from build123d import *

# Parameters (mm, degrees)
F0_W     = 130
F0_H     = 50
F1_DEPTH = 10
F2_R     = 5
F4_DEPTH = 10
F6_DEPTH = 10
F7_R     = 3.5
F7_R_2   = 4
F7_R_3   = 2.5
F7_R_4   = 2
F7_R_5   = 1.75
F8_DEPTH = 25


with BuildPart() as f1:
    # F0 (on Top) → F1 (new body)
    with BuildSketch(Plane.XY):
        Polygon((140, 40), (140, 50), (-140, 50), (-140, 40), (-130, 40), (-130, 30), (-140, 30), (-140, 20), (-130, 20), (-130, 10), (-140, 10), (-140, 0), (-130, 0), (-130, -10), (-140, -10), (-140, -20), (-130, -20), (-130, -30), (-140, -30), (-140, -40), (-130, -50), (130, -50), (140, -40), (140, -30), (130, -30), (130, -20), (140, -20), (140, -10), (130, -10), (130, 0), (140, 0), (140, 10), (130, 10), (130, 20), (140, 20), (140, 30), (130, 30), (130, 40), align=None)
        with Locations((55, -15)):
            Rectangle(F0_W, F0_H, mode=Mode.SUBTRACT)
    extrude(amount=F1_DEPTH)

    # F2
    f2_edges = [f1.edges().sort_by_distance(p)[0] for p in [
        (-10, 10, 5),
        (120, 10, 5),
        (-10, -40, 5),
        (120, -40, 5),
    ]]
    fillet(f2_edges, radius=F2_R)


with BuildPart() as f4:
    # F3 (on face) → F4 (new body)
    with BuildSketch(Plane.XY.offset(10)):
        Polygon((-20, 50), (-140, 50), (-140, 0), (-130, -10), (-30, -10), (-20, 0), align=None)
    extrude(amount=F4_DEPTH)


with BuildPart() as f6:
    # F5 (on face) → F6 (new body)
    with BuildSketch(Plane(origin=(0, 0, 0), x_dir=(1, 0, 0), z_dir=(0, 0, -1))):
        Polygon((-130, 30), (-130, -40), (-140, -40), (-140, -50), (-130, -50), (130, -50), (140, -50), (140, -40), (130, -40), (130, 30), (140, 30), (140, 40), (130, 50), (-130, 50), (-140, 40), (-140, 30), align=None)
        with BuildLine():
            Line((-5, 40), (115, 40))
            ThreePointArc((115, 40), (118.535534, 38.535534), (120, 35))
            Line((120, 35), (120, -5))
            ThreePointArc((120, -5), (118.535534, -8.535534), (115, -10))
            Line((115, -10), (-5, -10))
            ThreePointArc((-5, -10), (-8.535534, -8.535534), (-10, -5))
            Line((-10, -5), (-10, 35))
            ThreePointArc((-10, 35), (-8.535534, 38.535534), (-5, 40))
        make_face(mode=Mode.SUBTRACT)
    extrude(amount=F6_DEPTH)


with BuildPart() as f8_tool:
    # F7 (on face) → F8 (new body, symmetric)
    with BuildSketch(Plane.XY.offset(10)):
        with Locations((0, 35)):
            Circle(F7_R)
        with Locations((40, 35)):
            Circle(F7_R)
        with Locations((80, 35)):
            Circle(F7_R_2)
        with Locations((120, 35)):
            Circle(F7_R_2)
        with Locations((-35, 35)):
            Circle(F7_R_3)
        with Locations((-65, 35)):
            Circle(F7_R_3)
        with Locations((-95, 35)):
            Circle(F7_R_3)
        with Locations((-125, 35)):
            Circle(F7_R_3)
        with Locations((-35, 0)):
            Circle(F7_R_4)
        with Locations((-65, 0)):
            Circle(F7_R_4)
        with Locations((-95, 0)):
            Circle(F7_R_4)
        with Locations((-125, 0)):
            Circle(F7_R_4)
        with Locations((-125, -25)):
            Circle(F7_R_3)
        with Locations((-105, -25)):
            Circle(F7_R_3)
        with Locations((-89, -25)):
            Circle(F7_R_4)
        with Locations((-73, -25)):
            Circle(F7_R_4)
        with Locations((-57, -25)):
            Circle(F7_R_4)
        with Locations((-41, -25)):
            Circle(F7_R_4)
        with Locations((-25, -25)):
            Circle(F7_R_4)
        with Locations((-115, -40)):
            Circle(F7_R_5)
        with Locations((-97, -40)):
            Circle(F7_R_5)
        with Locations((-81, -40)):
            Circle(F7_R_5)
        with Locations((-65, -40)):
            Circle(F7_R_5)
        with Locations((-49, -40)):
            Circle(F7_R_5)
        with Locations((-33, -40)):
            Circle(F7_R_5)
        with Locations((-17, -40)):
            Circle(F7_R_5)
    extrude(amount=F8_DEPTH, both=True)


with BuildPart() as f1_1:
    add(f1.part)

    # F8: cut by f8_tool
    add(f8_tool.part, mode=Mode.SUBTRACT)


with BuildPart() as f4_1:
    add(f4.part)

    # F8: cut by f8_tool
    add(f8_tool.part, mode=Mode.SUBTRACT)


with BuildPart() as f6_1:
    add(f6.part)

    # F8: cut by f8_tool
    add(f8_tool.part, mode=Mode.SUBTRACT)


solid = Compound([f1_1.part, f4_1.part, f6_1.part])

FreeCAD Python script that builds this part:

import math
import FreeCAD as App
import Part
import Sketcher
Q = App.Units.Quantity


def edges_at(feature, points):
    """Names of the edges that pass closest to the given points."""
    edges = feature.Shape.Edges
    near = lambda p: min(range(len(edges)), key=lambda i: edges[i].distToShape(Part.Vertex(*p))[0])
    return sorted({f"Edge{near(p) + 1}" for p in points})

doc = App.newDocument("Part")
body = doc.addObject("PartDesign::Body", "Body")

sketch1 = doc.addObject("Sketcher::SketchObject", "Sketch")
body.addObject(sketch1)
sketch1.AttachmentSupport = (doc.XY_Plane, [""])
sketch1.MapMode = "FlatFace"
sketch1.addGeometry(Part.LineSegment(App.Vector(140, 40, 0), App.Vector(140, 50, 0)), False)
sketch1.addGeometry(Part.LineSegment(App.Vector(140, 50, 0), App.Vector(-140, 50, 0)), False)
sketch1.addGeometry(Part.LineSegment(App.Vector(-140, 50, 0), App.Vector(-140, 40, 0)), False)
sketch1.addGeometry(Part.LineSegment(App.Vector(-140, 40, 0), App.Vector(-130, 40, 0)), False)
sketch1.addGeometry(Part.LineSegment(App.Vector(-130, 40, 0), App.Vector(-130, 30, 0)), False)
sketch1.addGeometry(Part.LineSegment(App.Vector(-130, 30, 0), App.Vector(-140, 30, 0)), False)
sketch1.addGeometry(Part.LineSegment(App.Vector(-140, 30, 0), App.Vector(-140, 20, 0)), False)
sketch1.addGeometry(Part.LineSegment(App.Vector(-140, 20, 0), App.Vector(-130, 20, 0)), False)
sketch1.addGeometry(Part.LineSegment(App.Vector(-130, 20, 0), App.Vector(-130, 10, 0)), False)
sketch1.addGeometry(Part.LineSegment(App.Vector(-130, 10, 0), App.Vector(-140, 10, 0)), False)
sketch1.addGeometry(Part.LineSegment(App.Vector(-140, 10, 0), App.Vector(-140, 0, 0)), False)
sketch1.addGeometry(Part.LineSegment(App.Vector(-140, 0, 0), App.Vector(-130, 0, 0)), False)
sketch1.addGeometry(Part.LineSegment(App.Vector(-130, 0, 0), App.Vector(-130, -10, 0)), False)
sketch1.addGeometry(Part.LineSegment(App.Vector(-130, -10, 0), App.Vector(-140, -10, 0)), False)
sketch1.addGeometry(Part.LineSegment(App.Vector(-140, -10, 0), App.Vector(-140, -20, 0)), False)
sketch1.addGeometry(Part.LineSegment(App.Vector(-140, -20, 0), App.Vector(-130, -20, 0)), False)
sketch1.addGeometry(Part.LineSegment(App.Vector(-130, -20, 0), App.Vector(-130, -30, 0)), False)
sketch1.addGeometry(Part.LineSegment(App.Vector(-130, -30, 0), App.Vector(-140, -30, 0)), False)
sketch1.addGeometry(Part.LineSegment(App.Vector(-140, -30, 0), App.Vector(-140, -40, 0)), False)
sketch1.addGeometry(Part.LineSegment(App.Vector(-140, -40, 0), App.Vector(-130, -50, 0)), False)
sketch1.addGeometry(Part.LineSegment(App.Vector(-130, -50, 0), App.Vector(130, -50, 0)), False)
sketch1.addGeometry(Part.LineSegment(App.Vector(130, -50, 0), App.Vector(140, -40, 0)), False)
sketch1.addGeometry(Part.LineSegment(App.Vector(140, -40, 0), App.Vector(140, -30, 0)), False)
sketch1.addGeometry(Part.LineSegment(App.Vector(140, -30, 0), App.Vector(130, -30, 0)), False)
sketch1.addGeometry(Part.LineSegment(App.Vector(130, -30, 0), App.Vector(130, -20, 0)), False)
sketch1.addGeometry(Part.LineSegment(App.Vector(130, -20, 0), App.Vector(140, -20, 0)), False)
sketch1.addGeometry(Part.LineSegment(App.Vector(140, -20, 0), App.Vector(140, -10, 0)), False)
sketch1.addGeometry(Part.LineSegment(App.Vector(140, -10, 0), App.Vector(130, -10, 0)), False)
sketch1.addGeometry(Part.LineSegment(App.Vector(130, -10, 0), App.Vector(130, 0, 0)), False)
sketch1.addGeometry(Part.LineSegment(App.Vector(130, 0, 0), App.Vector(140, 0, 0)), False)
sketch1.addGeometry(Part.LineSegment(App.Vector(140, 0, 0), App.Vector(140, 10, 0)), False)
sketch1.addGeometry(Part.LineSegment(App.Vector(140, 10, 0), App.Vector(130, 10, 0)), False)
sketch1.addGeometry(Part.LineSegment(App.Vector(130, 10, 0), App.Vector(130, 20, 0)), False)
sketch1.addGeometry(Part.LineSegment(App.Vector(130, 20, 0), App.Vector(140, 20, 0)), False)
sketch1.addGeometry(Part.LineSegment(App.Vector(140, 20, 0), App.Vector(140, 30, 0)), False)
sketch1.addGeometry(Part.LineSegment(App.Vector(140, 30, 0), App.Vector(130, 30, 0)), False)
sketch1.addGeometry(Part.LineSegment(App.Vector(130, 30, 0), App.Vector(130, 40, 0)), False)
sketch1.addGeometry(Part.LineSegment(App.Vector(130, 40, 0), App.Vector(140, 40, 0)), False)
sketch1.addGeometry(Part.LineSegment(App.Vector(120, -40, 0), App.Vector(-10, -40, 0)), False)
sketch1.addGeometry(Part.LineSegment(App.Vector(-10, -40, 0), App.Vector(-10, 10, 0)), False)
sketch1.addGeometry(Part.LineSegment(App.Vector(-10, 10, 0), App.Vector(120, 10, 0)), False)
sketch1.addGeometry(Part.LineSegment(App.Vector(120, 10, 0), App.Vector(120, -40, 0)), False)
sketch1.addConstraint(Sketcher.Constraint("Coincident", 0, 2, 1, 1))
sketch1.addConstraint(Sketcher.Constraint("Coincident", 1, 2, 2, 1))
sketch1.addConstraint(Sketcher.Constraint("Coincident", 2, 2, 3, 1))
sketch1.addConstraint(Sketcher.Constraint("Coincident", 3, 2, 4, 1))
sketch1.addConstraint(Sketcher.Constraint("Coincident", 4, 2, 5, 1))
sketch1.addConstraint(Sketcher.Constraint("Coincident", 5, 2, 6, 1))
sketch1.addConstraint(Sketcher.Constraint("Coincident", 6, 2, 7, 1))
sketch1.addConstraint(Sketcher.Constraint("Coincident", 7, 2, 8, 1))
sketch1.addConstraint(Sketcher.Constraint("Coincident", 8, 2, 9, 1))
sketch1.addConstraint(Sketcher.Constraint("Coincident", 9, 2, 10, 1))
sketch1.addConstraint(Sketcher.Constraint("Coincident", 10, 2, 11, 1))
sketch1.addConstraint(Sketcher.Constraint("Coincident", 11, 2, 12, 1))
sketch1.addConstraint(Sketcher.Constraint("Coincident", 12, 2, 13, 1))
sketch1.addConstraint(Sketcher.Constraint("Coincident", 13, 2, 14, 1))
sketch1.addConstraint(Sketcher.Constraint("Coincident", 14, 2, 15, 1))
sketch1.addConstraint(Sketcher.Constraint("Coincident", 15, 2, 16, 1))
sketch1.addConstraint(Sketcher.Constraint("Coincident", 16, 2, 17, 1))
sketch1.addConstraint(Sketcher.Constraint("Coincident", 17, 2, 18, 1))
sketch1.addConstraint(Sketcher.Constraint("Coincident", 18, 2, 19, 1))
sketch1.addConstraint(Sketcher.Constraint("Coincident", 19, 2, 20, 1))
sketch1.addConstraint(Sketcher.Constraint("Coincident", 20, 2, 21, 1))
sketch1.addConstraint(Sketcher.Constraint("Coincident", 21, 2, 22, 1))
sketch1.addConstraint(Sketcher.Constraint("Coincident", 22, 2, 23, 1))
sketch1.addConstraint(Sketcher.Constraint("Coincident", 23, 2, 24, 1))
sketch1.addConstraint(Sketcher.Constraint("Coincident", 24, 2, 25, 1))
sketch1.addConstraint(Sketcher.Constraint("Coincident", 25, 2, 26, 1))
sketch1.addConstraint(Sketcher.Constraint("Coincident", 26, 2, 27, 1))
sketch1.addConstraint(Sketcher.Constraint("Coincident", 27, 2, 28, 1))
sketch1.addConstraint(Sketcher.Constraint("Coincident", 28, 2, 29, 1))
sketch1.addConstraint(Sketcher.Constraint("Coincident", 29, 2, 30, 1))
sketch1.addConstraint(Sketcher.Constraint("Coincident", 30, 2, 31, 1))
sketch1.addConstraint(Sketcher.Constraint("Coincident", 31, 2, 32, 1))
sketch1.addConstraint(Sketcher.Constraint("Coincident", 32, 2, 33, 1))
sketch1.addConstraint(Sketcher.Constraint("Coincident", 33, 2, 34, 1))
sketch1.addConstraint(Sketcher.Constraint("Coincident", 34, 2, 35, 1))
sketch1.addConstraint(Sketcher.Constraint("Coincident", 35, 2, 36, 1))
sketch1.addConstraint(Sketcher.Constraint("Coincident", 36, 2, 37, 1))
sketch1.addConstraint(Sketcher.Constraint("Coincident", 37, 2, 0, 1))
sketch1.addConstraint(Sketcher.Constraint("Coincident", 38, 2, 39, 1))
sketch1.addConstraint(Sketcher.Constraint("Coincident", 39, 2, 40, 1))
sketch1.addConstraint(Sketcher.Constraint("Coincident", 40, 2, 41, 1))
sketch1.addConstraint(Sketcher.Constraint("Coincident", 41, 2, 38, 1))
sketch1.addConstraint(Sketcher.Constraint("Vertical", 0))
sketch1.addConstraint(Sketcher.Constraint("Horizontal", 1))
sketch1.addConstraint(Sketcher.Constraint("Vertical", 2))
sketch1.addConstraint(Sketcher.Constraint("Horizontal", 3))
sketch1.addConstraint(Sketcher.Constraint("Vertical", 4))
sketch1.addConstraint(Sketcher.Constraint("Horizontal", 5))
sketch1.addConstraint(Sketcher.Constraint("Vertical", 6))
sketch1.addConstraint(Sketcher.Constraint("Horizontal", 7))
sketch1.addConstraint(Sketcher.Constraint("Vertical", 8))
sketch1.addConstraint(Sketcher.Constraint("Horizontal", 9))
sketch1.addConstraint(Sketcher.Constraint("Vertical", 10))
sketch1.addConstraint(Sketcher.Constraint("Horizontal", 11))
sketch1.addConstraint(Sketcher.Constraint("Vertical", 12))
sketch1.addConstraint(Sketcher.Constraint("Horizontal", 13))
sketch1.addConstraint(Sketcher.Constraint("Vertical", 14))
sketch1.addConstraint(Sketcher.Constraint("Horizontal", 15))
sketch1.addConstraint(Sketcher.Constraint("Vertical", 16))
sketch1.addConstraint(Sketcher.Constraint("Horizontal", 17))
sketch1.addConstraint(Sketcher.Constraint("Vertical", 18))
sketch1.addConstraint(Sketcher.Constraint("Horizontal", 20))
sketch1.addConstraint(Sketcher.Constraint("Vertical", 22))
sketch1.addConstraint(Sketcher.Constraint("Horizontal", 23))
sketch1.addConstraint(Sketcher.Constraint("Vertical", 24))
sketch1.addConstraint(Sketcher.Constraint("Horizontal", 25))
sketch1.addConstraint(Sketcher.Constraint("Vertical", 26))
sketch1.addConstraint(Sketcher.Constraint("Horizontal", 27))
sketch1.addConstraint(Sketcher.Constraint("Vertical", 28))
sketch1.addConstraint(Sketcher.Constraint("Horizontal", 29))
sketch1.addConstraint(Sketcher.Constraint("Vertical", 30))
sketch1.addConstraint(Sketcher.Constraint("Horizontal", 31))
sketch1.addConstraint(Sketcher.Constraint("Vertical", 32))
sketch1.addConstraint(Sketcher.Constraint("Horizontal", 33))
sketch1.addConstraint(Sketcher.Constraint("Vertical", 34))
sketch1.addConstraint(Sketcher.Constraint("Horizontal", 35))
sketch1.addConstraint(Sketcher.Constraint("Vertical", 36))
sketch1.addConstraint(Sketcher.Constraint("Horizontal", 37))
sketch1.addConstraint(Sketcher.Constraint("Horizontal", 38))
sketch1.addConstraint(Sketcher.Constraint("Vertical", 39))
sketch1.addConstraint(Sketcher.Constraint("Horizontal", 40))
sketch1.addConstraint(Sketcher.Constraint("Vertical", 41))
sketch1.addConstraint(Sketcher.Constraint("Symmetric", 2, 2, 21, 2, -1, 1))
sketch1.addConstraint(Sketcher.Constraint("Symmetric", 5, 2, 22, 2, -1, 1))
sketch1.addConstraint(Sketcher.Constraint("Symmetric", 7, 2, 24, 2, -1, 1))
sketch1.addConstraint(Sketcher.Constraint("Symmetric", 9, 2, 26, 2, -1, 1))
sketch1.addConstraint(Sketcher.Constraint("Symmetric", 11, 2, 28, 2, -1, 1))
sketch1.addConstraint(Sketcher.Constraint("Symmetric", 13, 2, 30, 2, -1, 1))
sketch1.addConstraint(Sketcher.Constraint("Symmetric", 15, 2, 32, 2, -1, 1))
sketch1.addConstraint(Sketcher.Constraint("Symmetric", 17, 2, 34, 2, -1, 1))
sketch1.addConstraint(Sketcher.Constraint("Symmetric", 18, 2, 37, 2, -1, 1))
sketch1.addConstraint(Sketcher.Constraint("Symmetric", 18, 2, 21, 2, -2))
sketch1.addConstraint(Sketcher.Constraint("Symmetric", 16, 2, 23, 2, -2))
sketch1.addConstraint(Sketcher.Constraint("Symmetric", 14, 2, 25, 2, -2))
sketch1.addConstraint(Sketcher.Constraint("Symmetric", 8, 2, 12, 2, -1))
sketch1.addConstraint(Sketcher.Constraint("PointOnObject", 10, 2, -1))
sketch1.addConstraint(Sketcher.Constraint("Perpendicular", 19, 21))
sketch1.addConstraint(Sketcher.Constraint("Horizontal", 21, 2, 38, 2))
sketch1.addConstraint(Sketcher.Constraint("Horizontal", 31, 2, 39, 2))
sketch1.addConstraint(Sketcher.Constraint("Vertical", 4, 2, 7, 2))
sketch1.addConstraint(Sketcher.Constraint("Vertical", 6, 2, 9, 2))
sketch1.addConstraint(Sketcher.Constraint("Vertical", 16, 2, 19, 2))
sketch1.addConstraint(Sketcher.Constraint("Vertical", 20, 2, 23, 2))
sketch1.addConstraint(Sketcher.Constraint("Vertical", 32, 2, 35, 2))
sketch1.addConstraint(Sketcher.Constraint("Equal", 37, 0))
sketch1.addConstraint(Sketcher.Constraint("Equal", 2, 4))
sketch1.addConstraint(Sketcher.Constraint("Equal", 4, 6))
sketch1.addConstraint(Sketcher.Constraint("Equal", 6, 8))
sketch1.addConstraint(Sketcher.Constraint("Equal", 8, 10))
sketch1.addConstraint(Sketcher.Constraint("DistanceX", 1, 2, 1, 1, Q("280 mm")))
sketch1.addConstraint(Sketcher.Constraint("DistanceX", 3, 1, 3, 2, Q("10 mm")))
sketch1.addConstraint(Sketcher.Constraint("DistanceX", 38, 2, 38, 1, Q("130 mm")))
sketch1.addConstraint(Sketcher.Constraint("DistanceX", 38, 2, -1, 1, Q("10 mm")))
pad1 = doc.addObject("PartDesign::Pad", "Pad")
body.addObject(pad1)
pad1.Profile = sketch1
pad1.Length = 10
doc.recompute()

fillet = doc.addObject("PartDesign::Fillet", "Fillet")
body.addObject(fillet)
fillet.Base = (pad1, edges_at(pad1, [
    (-10, 10, 5),
    (120, 10, 5),
    (-10, -40, 5),
    (120, -40, 5),
]))
fillet.Radius = 5
body2 = doc.addObject("PartDesign::Body", "Body001")

sketch2 = doc.addObject("Sketcher::SketchObject", "Sketch001")
body2.addObject(sketch2)
sketch2.AttachmentSupport = (doc.getObject("XY_Plane001"), [""])
sketch2.MapMode = "FlatFace"
sketch2.AttachmentOffset = App.Placement(App.Vector(0, 0, 10), App.Rotation())
sketch2.addGeometry(Part.LineSegment(App.Vector(-20, 50, 0), App.Vector(-140, 50, 0)), False)
sketch2.addGeometry(Part.LineSegment(App.Vector(-140, 50, 0), App.Vector(-140, 0, 0)), False)
sketch2.addGeometry(Part.LineSegment(App.Vector(-140, 0, 0), App.Vector(-130, -10, 0)), False)
sketch2.addGeometry(Part.LineSegment(App.Vector(-130, -10, 0), App.Vector(-30, -10, 0)), False)
sketch2.addGeometry(Part.LineSegment(App.Vector(-30, -10, 0), App.Vector(-20, 0, 0)), False)
sketch2.addGeometry(Part.LineSegment(App.Vector(-20, 0, 0), App.Vector(-20, 50, 0)), False)
sketch2.addConstraint(Sketcher.Constraint("Coincident", 0, 2, 1, 1))
sketch2.addConstraint(Sketcher.Constraint("Coincident", 1, 2, 2, 1))
sketch2.addConstraint(Sketcher.Constraint("Coincident", 2, 2, 3, 1))
sketch2.addConstraint(Sketcher.Constraint("Coincident", 3, 2, 4, 1))
sketch2.addConstraint(Sketcher.Constraint("Coincident", 4, 2, 5, 1))
sketch2.addConstraint(Sketcher.Constraint("Coincident", 5, 2, 0, 1))
sketch2.addConstraint(Sketcher.Constraint("Horizontal", 0))
sketch2.addConstraint(Sketcher.Constraint("Vertical", 1))
sketch2.addConstraint(Sketcher.Constraint("Horizontal", 3))
sketch2.addConstraint(Sketcher.Constraint("Vertical", 5))
sketch2.addConstraint(Sketcher.Constraint("PointOnObject", 1, 2, -1))
sketch2.addConstraint(Sketcher.Constraint("PointOnObject", 4, 2, -1))
sketch2.addConstraint(Sketcher.Constraint("Perpendicular", 2, 4))
sketch2.addConstraint(Sketcher.Constraint("Equal", 2, 4))
sketch2.addConstraint(Sketcher.Constraint("DistanceX", 0, 2, 0, 1, Q("120 mm")))
sketch2.addConstraint(Sketcher.Constraint("DistanceX", 3, 1, 3, 2, Q("100 mm")))
sketch2.addConstraint(Sketcher.Constraint("DistanceY", 1, 2, 1, 1, Q("50 mm")))
sketch2.addConstraint(Sketcher.Constraint("DistanceX", 0, 2, -1, 1, Q("140 mm")))
pad2 = doc.addObject("PartDesign::Pad", "Pad001")
body2.addObject(pad2)
pad2.Profile = sketch2
pad2.Length = 10
body3 = doc.addObject("PartDesign::Body", "Body002")

sketch3 = doc.addObject("Sketcher::SketchObject", "Sketch002")
body3.addObject(sketch3)
sketch3.AttachmentSupport = (doc.getObject("XY_Plane002"), [""])
sketch3.MapMode = "FlatFace"
sketch3.addGeometry(Part.LineSegment(App.Vector(-130, -30, 0), App.Vector(-130, 40, 0)), False)
sketch3.addGeometry(Part.LineSegment(App.Vector(-130, 40, 0), App.Vector(-140, 40, 0)), False)
sketch3.addGeometry(Part.LineSegment(App.Vector(-140, 40, 0), App.Vector(-140, 50, 0)), False)
sketch3.addGeometry(Part.LineSegment(App.Vector(-140, 50, 0), App.Vector(140, 50, 0)), False)
sketch3.addGeometry(Part.LineSegment(App.Vector(140, 50, 0), App.Vector(140, 40, 0)), False)
sketch3.addGeometry(Part.LineSegment(App.Vector(140, 40, 0), App.Vector(130, 40, 0)), False)
sketch3.addGeometry(Part.LineSegment(App.Vector(130, 40, 0), App.Vector(130, -30, 0)), False)
sketch3.addGeometry(Part.LineSegment(App.Vector(130, -30, 0), App.Vector(140, -30, 0)), False)
sketch3.addGeometry(Part.LineSegment(App.Vector(140, -30, 0), App.Vector(140, -40, 0)), False)
sketch3.addGeometry(Part.LineSegment(App.Vector(140, -40, 0), App.Vector(130, -50, 0)), False)
sketch3.addGeometry(Part.LineSegment(App.Vector(130, -50, 0), App.Vector(-130, -50, 0)), False)
sketch3.addGeometry(Part.LineSegment(App.Vector(-130, -50, 0), App.Vector(-140, -40, 0)), False)
sketch3.addGeometry(Part.LineSegment(App.Vector(-140, -40, 0), App.Vector(-140, -30, 0)), False)
sketch3.addGeometry(Part.LineSegment(App.Vector(-140, -30, 0), App.Vector(-130, -30, 0)), False)
sketch3.addGeometry(Part.ArcOfCircle(Part.Circle(App.Vector(-5, -35, 0), App.Vector(0, 0, 1), 5), math.radians(179.999996), math.radians(270.000004)), False)
sketch3.addGeometry(Part.LineSegment(App.Vector(-5, -40, 0), App.Vector(115, -40, 0)), False)
sketch3.addGeometry(Part.ArcOfCircle(Part.Circle(App.Vector(115, -35, 0), App.Vector(0, 0, 1), 5), math.radians(-90.000004), math.radians(0.000004)), False)
sketch3.addGeometry(Part.LineSegment(App.Vector(120, -35, 0), App.Vector(120, 5, 0)), False)
sketch3.addGeometry(Part.ArcOfCircle(Part.Circle(App.Vector(115, 5, 0), App.Vector(0, 0, 1), 5), math.radians(-0.000004), math.radians(90.000004)), False)
sketch3.addGeometry(Part.LineSegment(App.Vector(115, 10, 0), App.Vector(-5, 10, 0)), False)
sketch3.addGeometry(Part.ArcOfCircle(Part.Circle(App.Vector(-5, 5, 0), App.Vector(0, 0, 1), 5), math.radians(89.999996), math.radians(180.000004)), False)
sketch3.addGeometry(Part.LineSegment(App.Vector(-10, 5, 0), App.Vector(-10, -35, 0)), False)
sketch3.addConstraint(Sketcher.Constraint("Coincident", 0, 2, 1, 1))
sketch3.addConstraint(Sketcher.Constraint("Coincident", 1, 2, 2, 1))
sketch3.addConstraint(Sketcher.Constraint("Coincident", 2, 2, 3, 1))
sketch3.addConstraint(Sketcher.Constraint("Coincident", 3, 2, 4, 1))
sketch3.addConstraint(Sketcher.Constraint("Coincident", 4, 2, 5, 1))
sketch3.addConstraint(Sketcher.Constraint("Coincident", 5, 2, 6, 1))
sketch3.addConstraint(Sketcher.Constraint("Coincident", 6, 2, 7, 1))
sketch3.addConstraint(Sketcher.Constraint("Coincident", 7, 2, 8, 1))
sketch3.addConstraint(Sketcher.Constraint("Coincident", 8, 2, 9, 1))
sketch3.addConstraint(Sketcher.Constraint("Coincident", 9, 2, 10, 1))
sketch3.addConstraint(Sketcher.Constraint("Coincident", 10, 2, 11, 1))
sketch3.addConstraint(Sketcher.Constraint("Coincident", 11, 2, 12, 1))
sketch3.addConstraint(Sketcher.Constraint("Coincident", 12, 2, 13, 1))
sketch3.addConstraint(Sketcher.Constraint("Coincident", 13, 2, 0, 1))
sketch3.addConstraint(Sketcher.Constraint("Tangent", 14, 2, 15, 1))
sketch3.addConstraint(Sketcher.Constraint("Tangent", 15, 2, 16, 1))
sketch3.addConstraint(Sketcher.Constraint("Tangent", 16, 2, 17, 1))
sketch3.addConstraint(Sketcher.Constraint("Tangent", 17, 2, 18, 1))
sketch3.addConstraint(Sketcher.Constraint("Tangent", 18, 2, 19, 1))
sketch3.addConstraint(Sketcher.Constraint("Tangent", 19, 2, 20, 1))
sketch3.addConstraint(Sketcher.Constraint("Tangent", 20, 2, 21, 1))
sketch3.addConstraint(Sketcher.Constraint("Tangent", 21, 2, 14, 1))
sketch3.addConstraint(Sketcher.Constraint("Vertical", 0))
sketch3.addConstraint(Sketcher.Constraint("Horizontal", 1))
sketch3.addConstraint(Sketcher.Constraint("Vertical", 2))
sketch3.addConstraint(Sketcher.Constraint("Horizontal", 3))
sketch3.addConstraint(Sketcher.Constraint("Vertical", 4))
sketch3.addConstraint(Sketcher.Constraint("Horizontal", 5))
sketch3.addConstraint(Sketcher.Constraint("Vertical", 6))
sketch3.addConstraint(Sketcher.Constraint("Horizontal", 7))
sketch3.addConstraint(Sketcher.Constraint("Vertical", 8))
sketch3.addConstraint(Sketcher.Constraint("Horizontal", 10))
sketch3.addConstraint(Sketcher.Constraint("Vertical", 12))
sketch3.addConstraint(Sketcher.Constraint("Horizontal", 13))
sketch3.addConstraint(Sketcher.Constraint("Horizontal", 15))
sketch3.addConstraint(Sketcher.Constraint("Vertical", 17))
sketch3.addConstraint(Sketcher.Constraint("Horizontal", 19))
sketch3.addConstraint(Sketcher.Constraint("Vertical", 21))
sketch3.addConstraint(Sketcher.Constraint("Equal", 14, 16))
sketch3.addConstraint(Sketcher.Constraint("Equal", 16, 18))
sketch3.addConstraint(Sketcher.Constraint("Equal", 18, 20))
sketch3.addConstraint(Sketcher.Constraint("Symmetric", 1, 2, 8, 2, -1, 1))
sketch3.addConstraint(Sketcher.Constraint("Symmetric", 4, 2, 11, 2, -1, 1))
sketch3.addConstraint(Sketcher.Constraint("Symmetric", 1, 2, 4, 2, -2))
sketch3.addConstraint(Sketcher.Constraint("Symmetric", 6, 2, 13, 2, -2))
sketch3.addConstraint(Sketcher.Constraint("Perpendicular", 9, 11))
sketch3.addConstraint(Sketcher.Constraint("Horizontal", 11, 2, 14, 2))
sketch3.addConstraint(Sketcher.Constraint("Vertical", 6, 2, 9, 2))
sketch3.addConstraint(Sketcher.Constraint("Vertical", 0, 2, 10, 2))
sketch3.addConstraint(Sketcher.Constraint("Equal", 13, 2))
sketch3.addConstraint(Sketcher.Constraint("Equal", 4, 8))
sketch3.addConstraint(Sketcher.Constraint("Radius", 14, Q("5 mm")))
sketch3.addConstraint(Sketcher.Constraint("DistanceX", 1, 2, 1, 1, Q("10 mm")))
sketch3.addConstraint(Sketcher.Constraint("DistanceX", 3, 1, 3, 2, Q("280 mm")))
sketch3.addConstraint(Sketcher.Constraint("DistanceX", 15, 1, 15, 2, Q("120 mm")))
sketch3.addConstraint(Sketcher.Constraint("DistanceY", 0, 1, 0, 2, Q("70 mm")))
sketch3.addConstraint(Sketcher.Constraint("DistanceY", 17, 1, 17, 2, Q("40 mm")))
sketch3.addConstraint(Sketcher.Constraint("DistanceX", 14, 3, -1, 1, Q("5 mm")))
pad3 = doc.addObject("PartDesign::Pad", "Pad002")
body3.addObject(pad3)
pad3.Profile = sketch3
pad3.Length = 10
pad3.Reversed = True
body4 = doc.addObject("PartDesign::Body", "Body003")
body4.AllowCompound = True

sketch4 = doc.addObject("Sketcher::SketchObject", "Sketch003")
body4.addObject(sketch4)
sketch4.AttachmentSupport = (doc.getObject("XY_Plane003"), [""])
sketch4.MapMode = "FlatFace"
sketch4.AttachmentOffset = App.Placement(App.Vector(0, 0, 10), App.Rotation())
sketch4.addGeometry(Part.Circle(App.Vector(0, 35, 0), App.Vector(0, 0, 1), 3.5), False)
sketch4.addGeometry(Part.Circle(App.Vector(40, 35, 0), App.Vector(0, 0, 1), 3.5), False)
sketch4.addGeometry(Part.Circle(App.Vector(80, 35, 0), App.Vector(0, 0, 1), 4), False)
sketch4.addGeometry(Part.Circle(App.Vector(120, 35, 0), App.Vector(0, 0, 1), 4), False)
sketch4.addGeometry(Part.Circle(App.Vector(-35, 35, 0), App.Vector(0, 0, 1), 2.5), False)
sketch4.addGeometry(Part.Circle(App.Vector(-65, 35, 0), App.Vector(0, 0, 1), 2.5), False)
sketch4.addGeometry(Part.Circle(App.Vector(-95, 35, 0), App.Vector(0, 0, 1), 2.5), False)
sketch4.addGeometry(Part.Circle(App.Vector(-125, 35, 0), App.Vector(0, 0, 1), 2.5), False)
sketch4.addGeometry(Part.Circle(App.Vector(-35, 0, 0), App.Vector(0, 0, 1), 2), False)
sketch4.addGeometry(Part.Circle(App.Vector(-65, 0, 0), App.Vector(0, 0, 1), 2), False)
sketch4.addGeometry(Part.Circle(App.Vector(-95, 0, 0), App.Vector(0, 0, 1), 2), False)
sketch4.addGeometry(Part.Circle(App.Vector(-125, 0, 0), App.Vector(0, 0, 1), 2), False)
sketch4.addGeometry(Part.Circle(App.Vector(-125, -25, 0), App.Vector(0, 0, 1), 2.5), False)
sketch4.addGeometry(Part.Circle(App.Vector(-105, -25, 0), App.Vector(0, 0, 1), 2.5), False)
sketch4.addGeometry(Part.Circle(App.Vector(-89, -25, 0), App.Vector(0, 0, 1), 2), False)
sketch4.addGeometry(Part.Circle(App.Vector(-73, -25, 0), App.Vector(0, 0, 1), 2), False)
sketch4.addGeometry(Part.Circle(App.Vector(-57, -25, 0), App.Vector(0, 0, 1), 2), False)
sketch4.addGeometry(Part.Circle(App.Vector(-41, -25, 0), App.Vector(0, 0, 1), 2), False)
sketch4.addGeometry(Part.Circle(App.Vector(-25, -25, 0), App.Vector(0, 0, 1), 2), False)
sketch4.addGeometry(Part.Circle(App.Vector(-115, -40, 0), App.Vector(0, 0, 1), 1.75), False)
sketch4.addGeometry(Part.Circle(App.Vector(-97, -40, 0), App.Vector(0, 0, 1), 1.75), False)
sketch4.addGeometry(Part.Circle(App.Vector(-81, -40, 0), App.Vector(0, 0, 1), 1.75), False)
sketch4.addGeometry(Part.Circle(App.Vector(-65, -40, 0), App.Vector(0, 0, 1), 1.75), False)
sketch4.addGeometry(Part.Circle(App.Vector(-49, -40, 0), App.Vector(0, 0, 1), 1.75), False)
sketch4.addGeometry(Part.Circle(App.Vector(-33, -40, 0), App.Vector(0, 0, 1), 1.75), False)
sketch4.addGeometry(Part.Circle(App.Vector(-17, -40, 0), App.Vector(0, 0, 1), 1.75), False)
sketch4.addConstraint(Sketcher.Constraint("Equal", 0, 1))
sketch4.addConstraint(Sketcher.Constraint("Equal", 2, 3))
sketch4.addConstraint(Sketcher.Constraint("Equal", 4, 5))
sketch4.addConstraint(Sketcher.Constraint("Equal", 5, 6))
sketch4.addConstraint(Sketcher.Constraint("Equal", 6, 7))
sketch4.addConstraint(Sketcher.Constraint("Equal", 8, 9))
sketch4.addConstraint(Sketcher.Constraint("Equal", 9, 10))
sketch4.addConstraint(Sketcher.Constraint("Equal", 10, 11))
sketch4.addConstraint(Sketcher.Constraint("Equal", 7, 12))
sketch4.addConstraint(Sketcher.Constraint("Equal", 12, 13))
sketch4.addConstraint(Sketcher.Constraint("Equal", 11, 14))
sketch4.addConstraint(Sketcher.Constraint("Equal", 14, 15))
sketch4.addConstraint(Sketcher.Constraint("Equal", 15, 16))
sketch4.addConstraint(Sketcher.Constraint("Equal", 16, 17))
sketch4.addConstraint(Sketcher.Constraint("Equal", 17, 18))
sketch4.addConstraint(Sketcher.Constraint("Equal", 19, 20))
sketch4.addConstraint(Sketcher.Constraint("Equal", 20, 21))
sketch4.addConstraint(Sketcher.Constraint("Equal", 21, 22))
sketch4.addConstraint(Sketcher.Constraint("Equal", 22, 23))
sketch4.addConstraint(Sketcher.Constraint("Equal", 23, 24))
sketch4.addConstraint(Sketcher.Constraint("Equal", 24, 25))
sketch4.addConstraint(Sketcher.Constraint("PointOnObject", 0, 3, -2))
sketch4.addConstraint(Sketcher.Constraint("PointOnObject", 8, 3, -1))
sketch4.addConstraint(Sketcher.Constraint("PointOnObject", 9, 3, -1))
sketch4.addConstraint(Sketcher.Constraint("PointOnObject", 10, 3, -1))
sketch4.addConstraint(Sketcher.Constraint("PointOnObject", 11, 3, -1))
sketch4.addConstraint(Sketcher.Constraint("Horizontal", 0, 3, 1, 3))
sketch4.addConstraint(Sketcher.Constraint("Horizontal", 1, 3, 2, 3))
sketch4.addConstraint(Sketcher.Constraint("Horizontal", 2, 3, 3, 3))
sketch4.addConstraint(Sketcher.Constraint("Horizontal", 3, 3, 4, 3))
sketch4.addConstraint(Sketcher.Constraint("Horizontal", 4, 3, 5, 3))
sketch4.addConstraint(Sketcher.Constraint("Horizontal", 5, 3, 6, 3))
sketch4.addConstraint(Sketcher.Constraint("Horizontal", 6, 3, 7, 3))
sketch4.addConstraint(Sketcher.Constraint("Horizontal", 12, 3, 13, 3))
sketch4.addConstraint(Sketcher.Constraint("Horizontal", 13, 3, 14, 3))
sketch4.addConstraint(Sketcher.Constraint("Horizontal", 14, 3, 15, 3))
sketch4.addConstraint(Sketcher.Constraint("Horizontal", 15, 3, 16, 3))
sketch4.addConstraint(Sketcher.Constraint("Horizontal", 16, 3, 17, 3))
sketch4.addConstraint(Sketcher.Constraint("Horizontal", 17, 3, 18, 3))
sketch4.addConstraint(Sketcher.Constraint("Horizontal", 19, 3, 20, 3))
sketch4.addConstraint(Sketcher.Constraint("Horizontal", 20, 3, 21, 3))
sketch4.addConstraint(Sketcher.Constraint("Horizontal", 21, 3, 22, 3))
sketch4.addConstraint(Sketcher.Constraint("Horizontal", 22, 3, 23, 3))
sketch4.addConstraint(Sketcher.Constraint("Horizontal", 23, 3, 24, 3))
sketch4.addConstraint(Sketcher.Constraint("Horizontal", 24, 3, 25, 3))
sketch4.addConstraint(Sketcher.Constraint("Vertical", 4, 3, 8, 3))
sketch4.addConstraint(Sketcher.Constraint("Vertical", 5, 3, 9, 3))
sketch4.addConstraint(Sketcher.Constraint("Vertical", 6, 3, 10, 3))
sketch4.addConstraint(Sketcher.Constraint("Vertical", 7, 3, 11, 3))
sketch4.addConstraint(Sketcher.Constraint("Vertical", 11, 3, 12, 3))
sketch4.addConstraint(Sketcher.Constraint("Vertical", 9, 3, 22, 3))
sketch4.addConstraint(Sketcher.Constraint("Diameter", 0, Q("7 mm")))
sketch4.addConstraint(Sketcher.Constraint("Diameter", 2, Q("8 mm")))
sketch4.addConstraint(Sketcher.Constraint("Diameter", 4, Q("5 mm")))
sketch4.addConstraint(Sketcher.Constraint("Diameter", 8, Q("4 mm")))
sketch4.addConstraint(Sketcher.Constraint("Diameter", 19, Q("3.5 mm")))
sketch4.addConstraint(Sketcher.Constraint("DistanceY", -1, 1, 0, 3, Q("35 mm")))
sketch4.addConstraint(Sketcher.Constraint("DistanceX", -1, 1, 1, 3, Q("40 mm")))
sketch4.addConstraint(Sketcher.Constraint("DistanceX", -1, 1, 2, 3, Q("80 mm")))
sketch4.addConstraint(Sketcher.Constraint("DistanceX", -1, 1, 3, 3, Q("120 mm")))
sketch4.addConstraint(Sketcher.Constraint("DistanceX", 4, 3, -1, 1, Q("35 mm")))
sketch4.addConstraint(Sketcher.Constraint("DistanceX", 5, 3, -1, 1, Q("65 mm")))
sketch4.addConstraint(Sketcher.Constraint("DistanceX", 6, 3, -1, 1, Q("95 mm")))
sketch4.addConstraint(Sketcher.Constraint("DistanceX", 7, 3, -1, 1, Q("125 mm")))
sketch4.addConstraint(Sketcher.Constraint("DistanceY", 12, 3, -1, 1, Q("25 mm")))
sketch4.addConstraint(Sketcher.Constraint("DistanceX", 13, 3, -1, 1, Q("105 mm")))
sketch4.addConstraint(Sketcher.Constraint("DistanceX", 14, 3, -1, 1, Q("89 mm")))
sketch4.addConstraint(Sketcher.Constraint("DistanceX", 15, 3, -1, 1, Q("73 mm")))
sketch4.addConstraint(Sketcher.Constraint("DistanceX", 16, 3, -1, 1, Q("57 mm")))
sketch4.addConstraint(Sketcher.Constraint("DistanceX", 17, 3, -1, 1, Q("41 mm")))
sketch4.addConstraint(Sketcher.Constraint("DistanceX", 18, 3, -1, 1, Q("25 mm")))
sketch4.addConstraint(Sketcher.Constraint("DistanceX", 19, 3, -1, 1, Q("115 mm")))
sketch4.addConstraint(Sketcher.Constraint("DistanceY", 19, 3, -1, 1, Q("40 mm")))
sketch4.addConstraint(Sketcher.Constraint("DistanceX", 20, 3, -1, 1, Q("97 mm")))
sketch4.addConstraint(Sketcher.Constraint("DistanceX", 21, 3, -1, 1, Q("81 mm")))
sketch4.addConstraint(Sketcher.Constraint("DistanceX", 23, 3, -1, 1, Q("49 mm")))
sketch4.addConstraint(Sketcher.Constraint("DistanceX", 24, 3, -1, 1, Q("33 mm")))
sketch4.addConstraint(Sketcher.Constraint("DistanceX", 25, 3, -1, 1, Q("17 mm")))
pad4 = doc.addObject("PartDesign::Pad", "Pad003")
body4.addObject(pad4)
pad4.Profile = sketch4
pad4.Length = 50
pad4.Midplane = True
doc.recompute()

body5 = doc.addObject("PartDesign::Body", "Body004")
body5.BaseFeature = body4
boolean = doc.addObject("PartDesign::Boolean", "Boolean")
body.addObject(boolean)
boolean.Type = "Cut"
boolean.addObjects([body5])
doc.recompute()

body6 = doc.addObject("PartDesign::Body", "Body005")
body6.BaseFeature = body4
boolean2 = doc.addObject("PartDesign::Boolean", "Boolean001")
body2.addObject(boolean2)
boolean2.Type = "Cut"
boolean2.addObjects([body6])
doc.recompute()

boolean3 = doc.addObject("PartDesign::Boolean", "Boolean002")
body3.addObject(boolean3)
boolean3.Type = "Cut"
boolean3.addObjects([body4])

doc.recompute()
